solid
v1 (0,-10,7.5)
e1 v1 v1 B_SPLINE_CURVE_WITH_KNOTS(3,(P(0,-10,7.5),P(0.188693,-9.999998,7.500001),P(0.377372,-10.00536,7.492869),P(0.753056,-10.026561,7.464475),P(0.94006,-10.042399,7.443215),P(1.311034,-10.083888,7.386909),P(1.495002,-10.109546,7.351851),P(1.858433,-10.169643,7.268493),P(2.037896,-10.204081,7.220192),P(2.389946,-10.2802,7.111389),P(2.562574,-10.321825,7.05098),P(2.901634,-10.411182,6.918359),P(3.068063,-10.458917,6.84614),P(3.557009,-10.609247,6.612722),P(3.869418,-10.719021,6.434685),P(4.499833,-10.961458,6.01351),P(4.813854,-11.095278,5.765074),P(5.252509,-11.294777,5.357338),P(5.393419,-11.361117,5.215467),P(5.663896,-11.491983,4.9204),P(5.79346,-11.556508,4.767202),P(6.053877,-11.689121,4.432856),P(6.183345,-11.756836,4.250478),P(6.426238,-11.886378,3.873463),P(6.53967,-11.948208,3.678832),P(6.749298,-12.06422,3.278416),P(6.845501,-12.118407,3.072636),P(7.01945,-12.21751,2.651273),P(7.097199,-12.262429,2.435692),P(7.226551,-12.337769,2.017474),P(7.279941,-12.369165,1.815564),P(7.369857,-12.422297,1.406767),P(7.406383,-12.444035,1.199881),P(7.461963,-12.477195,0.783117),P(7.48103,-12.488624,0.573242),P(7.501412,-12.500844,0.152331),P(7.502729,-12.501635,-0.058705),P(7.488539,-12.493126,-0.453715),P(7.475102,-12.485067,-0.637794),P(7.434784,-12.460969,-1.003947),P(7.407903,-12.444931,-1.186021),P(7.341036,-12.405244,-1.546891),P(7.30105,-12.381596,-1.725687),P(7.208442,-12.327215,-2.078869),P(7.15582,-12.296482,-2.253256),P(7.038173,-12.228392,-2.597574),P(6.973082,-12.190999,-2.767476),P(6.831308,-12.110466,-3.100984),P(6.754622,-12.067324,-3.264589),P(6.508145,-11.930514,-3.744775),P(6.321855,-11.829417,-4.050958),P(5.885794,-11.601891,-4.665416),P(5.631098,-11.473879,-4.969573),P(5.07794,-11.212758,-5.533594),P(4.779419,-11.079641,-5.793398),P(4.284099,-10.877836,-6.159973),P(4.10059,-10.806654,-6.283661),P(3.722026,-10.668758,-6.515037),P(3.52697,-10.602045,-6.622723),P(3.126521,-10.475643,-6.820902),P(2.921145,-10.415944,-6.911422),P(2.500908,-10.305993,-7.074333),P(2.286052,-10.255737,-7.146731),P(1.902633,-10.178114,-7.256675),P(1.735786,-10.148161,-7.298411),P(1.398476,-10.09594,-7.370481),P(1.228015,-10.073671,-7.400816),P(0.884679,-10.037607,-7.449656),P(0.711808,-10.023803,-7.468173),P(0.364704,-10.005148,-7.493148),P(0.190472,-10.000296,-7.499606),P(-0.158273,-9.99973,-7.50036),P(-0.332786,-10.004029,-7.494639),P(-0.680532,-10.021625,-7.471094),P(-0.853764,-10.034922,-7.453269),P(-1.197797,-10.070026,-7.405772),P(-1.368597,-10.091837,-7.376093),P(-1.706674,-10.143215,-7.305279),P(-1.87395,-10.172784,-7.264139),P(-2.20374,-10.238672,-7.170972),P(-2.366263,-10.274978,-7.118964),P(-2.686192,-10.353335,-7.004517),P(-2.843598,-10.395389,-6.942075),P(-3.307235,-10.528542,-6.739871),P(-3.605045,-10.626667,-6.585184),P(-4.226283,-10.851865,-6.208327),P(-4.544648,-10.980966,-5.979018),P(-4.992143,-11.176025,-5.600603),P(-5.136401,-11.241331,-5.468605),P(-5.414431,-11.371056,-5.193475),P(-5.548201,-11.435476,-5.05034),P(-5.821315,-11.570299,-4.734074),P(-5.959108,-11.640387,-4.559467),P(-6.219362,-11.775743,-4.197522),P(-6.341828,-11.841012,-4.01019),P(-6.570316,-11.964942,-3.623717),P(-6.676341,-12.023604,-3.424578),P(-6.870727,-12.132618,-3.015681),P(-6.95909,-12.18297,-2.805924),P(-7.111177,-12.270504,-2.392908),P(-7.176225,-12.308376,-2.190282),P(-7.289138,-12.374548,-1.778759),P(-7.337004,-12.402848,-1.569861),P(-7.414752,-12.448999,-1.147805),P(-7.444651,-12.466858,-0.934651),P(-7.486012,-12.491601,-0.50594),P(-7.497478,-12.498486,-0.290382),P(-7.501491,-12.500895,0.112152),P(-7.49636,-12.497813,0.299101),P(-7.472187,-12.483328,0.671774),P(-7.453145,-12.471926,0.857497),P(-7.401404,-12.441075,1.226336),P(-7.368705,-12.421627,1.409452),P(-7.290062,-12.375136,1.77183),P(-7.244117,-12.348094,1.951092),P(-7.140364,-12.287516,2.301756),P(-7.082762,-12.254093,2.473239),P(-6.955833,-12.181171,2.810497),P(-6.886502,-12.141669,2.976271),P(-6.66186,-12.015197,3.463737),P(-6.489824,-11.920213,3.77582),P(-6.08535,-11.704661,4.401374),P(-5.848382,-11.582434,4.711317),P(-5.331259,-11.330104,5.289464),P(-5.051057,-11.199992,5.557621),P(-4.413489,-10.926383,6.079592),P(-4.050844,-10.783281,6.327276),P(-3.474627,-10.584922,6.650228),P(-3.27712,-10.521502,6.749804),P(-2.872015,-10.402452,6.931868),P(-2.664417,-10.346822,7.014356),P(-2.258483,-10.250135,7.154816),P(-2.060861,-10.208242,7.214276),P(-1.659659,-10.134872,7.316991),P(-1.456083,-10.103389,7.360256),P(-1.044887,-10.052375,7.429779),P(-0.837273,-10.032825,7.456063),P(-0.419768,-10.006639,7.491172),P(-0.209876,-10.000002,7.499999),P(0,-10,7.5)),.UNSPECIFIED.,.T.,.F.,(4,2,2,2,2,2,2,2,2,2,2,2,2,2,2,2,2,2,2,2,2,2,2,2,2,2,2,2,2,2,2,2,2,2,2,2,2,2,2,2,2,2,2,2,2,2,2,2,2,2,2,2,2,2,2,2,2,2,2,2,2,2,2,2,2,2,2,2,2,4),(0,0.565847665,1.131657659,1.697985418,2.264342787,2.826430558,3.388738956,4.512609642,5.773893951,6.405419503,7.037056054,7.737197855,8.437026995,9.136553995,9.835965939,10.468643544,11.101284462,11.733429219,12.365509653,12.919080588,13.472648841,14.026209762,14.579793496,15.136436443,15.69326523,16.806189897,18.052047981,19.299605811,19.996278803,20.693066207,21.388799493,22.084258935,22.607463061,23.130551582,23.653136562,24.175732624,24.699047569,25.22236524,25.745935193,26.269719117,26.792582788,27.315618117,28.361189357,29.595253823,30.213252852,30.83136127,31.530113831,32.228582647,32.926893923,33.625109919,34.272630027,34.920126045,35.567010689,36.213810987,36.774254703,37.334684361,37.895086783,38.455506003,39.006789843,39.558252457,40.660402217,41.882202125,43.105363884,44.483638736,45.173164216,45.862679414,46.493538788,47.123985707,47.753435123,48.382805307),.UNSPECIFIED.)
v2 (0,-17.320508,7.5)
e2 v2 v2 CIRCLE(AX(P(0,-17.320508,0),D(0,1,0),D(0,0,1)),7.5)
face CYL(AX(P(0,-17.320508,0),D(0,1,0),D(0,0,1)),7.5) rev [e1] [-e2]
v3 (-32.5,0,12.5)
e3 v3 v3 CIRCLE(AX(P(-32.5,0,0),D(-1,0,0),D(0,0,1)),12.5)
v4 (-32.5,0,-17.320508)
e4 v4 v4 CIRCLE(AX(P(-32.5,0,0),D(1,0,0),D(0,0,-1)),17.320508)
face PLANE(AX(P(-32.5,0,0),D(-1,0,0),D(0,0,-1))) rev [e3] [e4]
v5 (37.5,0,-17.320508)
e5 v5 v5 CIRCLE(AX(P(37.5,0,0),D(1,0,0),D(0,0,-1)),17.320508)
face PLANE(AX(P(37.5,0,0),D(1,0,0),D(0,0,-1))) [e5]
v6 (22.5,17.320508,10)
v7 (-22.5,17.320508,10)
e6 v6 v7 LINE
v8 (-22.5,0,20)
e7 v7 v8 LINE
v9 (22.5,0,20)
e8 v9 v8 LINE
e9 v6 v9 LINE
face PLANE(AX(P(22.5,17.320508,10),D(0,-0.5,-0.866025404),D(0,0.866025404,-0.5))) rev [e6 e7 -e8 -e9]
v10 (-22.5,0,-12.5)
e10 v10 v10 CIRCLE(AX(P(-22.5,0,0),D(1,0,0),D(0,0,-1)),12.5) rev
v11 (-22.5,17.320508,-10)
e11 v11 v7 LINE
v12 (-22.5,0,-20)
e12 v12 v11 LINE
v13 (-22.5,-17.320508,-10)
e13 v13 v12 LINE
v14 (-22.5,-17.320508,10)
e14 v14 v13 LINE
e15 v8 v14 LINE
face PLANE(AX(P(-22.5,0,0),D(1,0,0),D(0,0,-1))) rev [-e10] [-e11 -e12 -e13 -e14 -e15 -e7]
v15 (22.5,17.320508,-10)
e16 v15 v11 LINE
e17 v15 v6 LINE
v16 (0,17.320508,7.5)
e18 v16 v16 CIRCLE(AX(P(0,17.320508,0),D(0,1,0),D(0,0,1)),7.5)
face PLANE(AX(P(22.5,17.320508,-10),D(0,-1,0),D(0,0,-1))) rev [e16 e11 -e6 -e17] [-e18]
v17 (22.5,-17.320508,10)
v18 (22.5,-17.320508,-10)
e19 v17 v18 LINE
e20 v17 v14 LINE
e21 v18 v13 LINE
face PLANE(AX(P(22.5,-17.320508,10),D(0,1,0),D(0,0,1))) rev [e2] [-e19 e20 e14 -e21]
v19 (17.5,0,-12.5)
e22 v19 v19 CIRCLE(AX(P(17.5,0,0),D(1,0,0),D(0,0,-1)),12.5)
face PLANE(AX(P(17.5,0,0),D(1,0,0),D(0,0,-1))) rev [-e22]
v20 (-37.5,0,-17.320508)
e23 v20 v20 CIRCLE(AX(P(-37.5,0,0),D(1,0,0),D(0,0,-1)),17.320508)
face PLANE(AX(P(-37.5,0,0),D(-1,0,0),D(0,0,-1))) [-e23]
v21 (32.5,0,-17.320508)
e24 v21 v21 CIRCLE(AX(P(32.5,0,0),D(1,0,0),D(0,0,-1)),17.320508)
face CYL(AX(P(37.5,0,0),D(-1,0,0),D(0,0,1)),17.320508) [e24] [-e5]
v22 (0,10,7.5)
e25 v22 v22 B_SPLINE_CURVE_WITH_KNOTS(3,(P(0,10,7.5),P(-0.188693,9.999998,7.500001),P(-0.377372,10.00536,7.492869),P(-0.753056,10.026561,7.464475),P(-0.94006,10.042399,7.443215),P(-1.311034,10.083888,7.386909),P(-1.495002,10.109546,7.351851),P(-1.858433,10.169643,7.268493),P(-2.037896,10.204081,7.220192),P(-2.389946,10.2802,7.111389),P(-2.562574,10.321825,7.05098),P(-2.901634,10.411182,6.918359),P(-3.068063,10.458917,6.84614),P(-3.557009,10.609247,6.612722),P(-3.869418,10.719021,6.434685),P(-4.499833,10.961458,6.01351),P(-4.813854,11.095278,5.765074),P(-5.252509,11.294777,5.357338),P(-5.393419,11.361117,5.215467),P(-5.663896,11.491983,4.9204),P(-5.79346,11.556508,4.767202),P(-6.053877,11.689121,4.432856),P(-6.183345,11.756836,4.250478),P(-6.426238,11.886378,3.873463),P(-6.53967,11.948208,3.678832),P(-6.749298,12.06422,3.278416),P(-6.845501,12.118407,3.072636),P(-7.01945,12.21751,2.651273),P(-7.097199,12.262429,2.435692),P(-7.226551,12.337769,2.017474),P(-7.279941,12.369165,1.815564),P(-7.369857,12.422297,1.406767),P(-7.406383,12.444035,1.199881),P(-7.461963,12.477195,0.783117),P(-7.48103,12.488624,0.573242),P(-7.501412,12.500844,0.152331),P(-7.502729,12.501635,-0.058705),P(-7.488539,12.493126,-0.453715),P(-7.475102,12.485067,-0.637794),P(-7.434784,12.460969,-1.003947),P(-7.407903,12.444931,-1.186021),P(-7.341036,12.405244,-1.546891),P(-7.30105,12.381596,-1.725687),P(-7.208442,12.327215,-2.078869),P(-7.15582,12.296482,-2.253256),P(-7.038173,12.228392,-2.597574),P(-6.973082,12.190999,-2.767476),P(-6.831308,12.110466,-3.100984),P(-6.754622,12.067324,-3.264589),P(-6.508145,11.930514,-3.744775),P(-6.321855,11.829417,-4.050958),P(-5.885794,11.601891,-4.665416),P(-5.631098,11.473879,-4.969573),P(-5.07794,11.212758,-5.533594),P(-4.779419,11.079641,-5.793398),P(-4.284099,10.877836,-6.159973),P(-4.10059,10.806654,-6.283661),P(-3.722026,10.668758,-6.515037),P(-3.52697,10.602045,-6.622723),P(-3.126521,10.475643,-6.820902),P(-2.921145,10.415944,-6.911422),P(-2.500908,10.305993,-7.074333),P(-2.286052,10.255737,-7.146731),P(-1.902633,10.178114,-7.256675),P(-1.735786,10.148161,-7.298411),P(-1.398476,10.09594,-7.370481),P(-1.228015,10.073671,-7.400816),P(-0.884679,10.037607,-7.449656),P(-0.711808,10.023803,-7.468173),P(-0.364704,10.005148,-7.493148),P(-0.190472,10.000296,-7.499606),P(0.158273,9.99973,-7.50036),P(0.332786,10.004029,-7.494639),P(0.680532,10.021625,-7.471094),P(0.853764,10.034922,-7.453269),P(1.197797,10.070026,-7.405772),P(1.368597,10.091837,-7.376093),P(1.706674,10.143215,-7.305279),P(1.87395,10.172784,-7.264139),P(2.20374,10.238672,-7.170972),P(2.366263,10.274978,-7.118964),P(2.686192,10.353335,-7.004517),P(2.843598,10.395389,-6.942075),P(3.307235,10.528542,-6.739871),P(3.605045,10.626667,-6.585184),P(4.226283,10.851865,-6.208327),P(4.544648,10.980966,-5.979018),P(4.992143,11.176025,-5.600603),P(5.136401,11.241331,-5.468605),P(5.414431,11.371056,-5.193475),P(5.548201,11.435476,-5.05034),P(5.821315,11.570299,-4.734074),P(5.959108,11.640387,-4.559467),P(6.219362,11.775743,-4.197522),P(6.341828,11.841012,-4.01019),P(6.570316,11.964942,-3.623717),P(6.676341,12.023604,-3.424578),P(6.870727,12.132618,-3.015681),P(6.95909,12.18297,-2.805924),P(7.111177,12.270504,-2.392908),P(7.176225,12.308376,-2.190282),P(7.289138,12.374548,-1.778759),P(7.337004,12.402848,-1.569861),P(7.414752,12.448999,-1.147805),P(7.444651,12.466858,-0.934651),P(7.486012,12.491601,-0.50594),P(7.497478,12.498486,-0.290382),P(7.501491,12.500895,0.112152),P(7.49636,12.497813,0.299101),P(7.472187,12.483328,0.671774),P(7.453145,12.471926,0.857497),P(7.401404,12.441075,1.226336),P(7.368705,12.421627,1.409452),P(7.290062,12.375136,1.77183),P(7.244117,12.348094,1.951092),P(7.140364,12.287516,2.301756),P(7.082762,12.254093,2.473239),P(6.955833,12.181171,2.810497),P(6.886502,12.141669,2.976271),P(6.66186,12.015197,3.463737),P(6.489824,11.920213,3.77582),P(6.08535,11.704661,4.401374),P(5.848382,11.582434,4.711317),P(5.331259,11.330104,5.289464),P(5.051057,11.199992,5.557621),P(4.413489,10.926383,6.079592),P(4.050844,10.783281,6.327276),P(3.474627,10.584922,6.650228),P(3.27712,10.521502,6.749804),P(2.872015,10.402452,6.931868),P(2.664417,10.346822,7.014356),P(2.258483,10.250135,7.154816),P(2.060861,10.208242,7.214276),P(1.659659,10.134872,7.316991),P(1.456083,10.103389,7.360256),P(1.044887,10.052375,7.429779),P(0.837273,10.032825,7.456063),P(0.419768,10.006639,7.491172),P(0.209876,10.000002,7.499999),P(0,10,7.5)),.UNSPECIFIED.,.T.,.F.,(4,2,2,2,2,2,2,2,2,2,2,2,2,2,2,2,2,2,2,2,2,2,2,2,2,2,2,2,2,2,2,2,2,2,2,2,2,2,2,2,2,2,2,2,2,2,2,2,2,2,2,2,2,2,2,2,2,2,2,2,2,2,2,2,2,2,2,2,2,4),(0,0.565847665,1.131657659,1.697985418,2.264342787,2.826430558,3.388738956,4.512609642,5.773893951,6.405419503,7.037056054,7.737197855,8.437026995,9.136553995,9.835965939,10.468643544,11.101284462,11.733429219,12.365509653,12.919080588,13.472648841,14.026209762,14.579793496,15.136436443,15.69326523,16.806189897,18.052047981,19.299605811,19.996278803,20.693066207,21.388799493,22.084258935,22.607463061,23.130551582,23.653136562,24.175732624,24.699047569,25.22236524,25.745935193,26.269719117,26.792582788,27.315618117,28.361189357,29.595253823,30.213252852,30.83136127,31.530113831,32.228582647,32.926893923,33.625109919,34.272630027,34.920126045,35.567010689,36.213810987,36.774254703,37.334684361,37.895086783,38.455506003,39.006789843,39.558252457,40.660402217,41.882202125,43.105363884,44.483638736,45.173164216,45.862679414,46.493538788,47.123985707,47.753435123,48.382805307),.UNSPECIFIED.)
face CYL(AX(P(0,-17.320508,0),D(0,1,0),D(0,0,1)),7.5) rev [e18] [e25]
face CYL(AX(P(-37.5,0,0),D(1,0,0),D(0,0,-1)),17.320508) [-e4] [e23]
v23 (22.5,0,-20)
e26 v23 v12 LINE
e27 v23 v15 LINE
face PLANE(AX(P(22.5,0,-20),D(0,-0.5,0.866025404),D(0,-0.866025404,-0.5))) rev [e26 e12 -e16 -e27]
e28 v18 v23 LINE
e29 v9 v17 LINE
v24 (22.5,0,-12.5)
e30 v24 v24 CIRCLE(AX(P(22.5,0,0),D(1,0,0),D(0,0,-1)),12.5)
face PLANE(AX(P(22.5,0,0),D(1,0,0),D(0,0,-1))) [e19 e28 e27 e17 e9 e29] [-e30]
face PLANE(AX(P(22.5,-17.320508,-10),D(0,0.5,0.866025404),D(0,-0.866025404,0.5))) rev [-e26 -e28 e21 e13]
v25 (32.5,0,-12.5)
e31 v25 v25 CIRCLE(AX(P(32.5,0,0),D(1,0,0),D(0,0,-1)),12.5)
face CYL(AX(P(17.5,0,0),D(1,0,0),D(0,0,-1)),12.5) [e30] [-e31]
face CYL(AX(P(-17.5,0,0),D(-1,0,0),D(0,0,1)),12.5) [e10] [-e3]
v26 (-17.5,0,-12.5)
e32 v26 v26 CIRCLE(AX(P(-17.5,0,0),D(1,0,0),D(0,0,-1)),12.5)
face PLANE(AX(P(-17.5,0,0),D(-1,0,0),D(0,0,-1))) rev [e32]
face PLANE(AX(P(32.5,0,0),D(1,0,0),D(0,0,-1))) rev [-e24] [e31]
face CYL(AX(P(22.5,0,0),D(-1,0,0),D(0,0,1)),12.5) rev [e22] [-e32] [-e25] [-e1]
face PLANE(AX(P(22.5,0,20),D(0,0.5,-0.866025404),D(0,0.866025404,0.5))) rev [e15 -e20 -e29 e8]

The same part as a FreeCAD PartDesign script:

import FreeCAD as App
import Part
import Sketcher
from FreeCAD import Vector
Q = App.Units.Quantity


def add_polygon(sketch, points):
    """Adds a closed chain of lines whose ends are joined by coincident constraints."""
    first, n = sketch.GeometryCount, len(points)
    for a, b in zip(points, points[1:] + points[:1]):
        sketch.addGeometry(Part.LineSegment(App.Vector(*a, 0), App.Vector(*b, 0)), False)
    for i in range(n):
        sketch.addConstraint(Sketcher.Constraint("Coincident", first + i, 2, first + (i + 1) % n, 1))

doc = App.newDocument("Part")
params = doc.addObject("Spreadsheet::Sheet", "Params")
for row, (alias, value) in enumerate([
    ("sketch1_diameter", "25 mm"),
    ("sketch1_height", "20 mm"),
    ("sketch1_length", "20 mm"),
    ("pad1_length", "45 mm"),
    ("sketch2_diameter", "15 mm"),
    ("sketch3_diameter", "25 mm"),
    ("pad2_length", "15 mm"),
    ("pad3_length", "5 mm"),
], start=1):
    params.set(f"A{row}", alias)
    params.set(f"B{row}", "=" + value)
    params.setAlias(f"B{row}", alias)

body = doc.addObject("PartDesign::Body", "Body")

sketch1 = body.newObject("Sketcher::SketchObject", "Sketch")
sketch1.AttachmentSupport = (doc.getObject("YZ_Plane"), [""])
sketch1.MapMode = "FlatFace"
add_polygon(sketch1, [(17.320508, -10), (17.320508, 10), (0, 20), (-17.320508, 10), (-17.320508, -10), (0, -20)])
sketch1.addGeometry(Part.Circle(Vector(0, 0, 0), Vector(0, 0, 1), 12.5), False)
sketch1.addConstraint([
    Sketcher.Constraint("Vertical", 0),
    Sketcher.Constraint("Vertical", 3),
    Sketcher.Constraint("Coincident", 6, 3, -1, 1),
    Sketcher.Constraint("Symmetric", 0, 2, 3, 2, -1, 1),
    Sketcher.Constraint("Symmetric", 1, 2, 4, 2, -1, 1),
    Sketcher.Constraint("PointOnObject", 1, 2, -2),
    Sketcher.Constraint("Parallel", 2, 5),
    Sketcher.Constraint("Horizontal", 0, 2, 2, 2),
    Sketcher.Constraint("Diameter", 6, Q("25 mm")),
    Sketcher.Constraint("DistanceY", 0, 1, 0, 2, Q("20 mm")),
    Sketcher.Constraint("Angle", 1, Q("150 deg")),
    Sketcher.Constraint("Distance", 1, Q("20 mm")),
])
sketch1.setExpression("Constraints[14]", "Params.sketch1_diameter")
sketch1.setExpression("Constraints[15]", "Params.sketch1_height")
sketch1.setExpression("Constraints[17]", "Params.sketch1_length")
pad1 = body.newObject("PartDesign::Pad", "Pad")
pad1.Profile = sketch1
pad1.setExpression("Length", "Params.pad1_length")
pad1.Midplane = True

sketch2 = body.newObject("Sketcher::SketchObject", "Sketch001")
sketch2.AttachmentSupport = (doc.getObject("XZ_Plane"), [""])
sketch2.MapMode = "FlatFace"
sketch2.addGeometry(Part.Circle(Vector(0, 0, 0), Vector(0, 0, 1), 7.5), False)
sketch2.addConstraint([
    Sketcher.Constraint("Coincident", 0, 3, -1, 1),
    Sketcher.Constraint("Diameter", 0, Q("15 mm")),
])
sketch2.setExpression("Constraints[1]", "Params.sketch2_diameter")
pocket1 = body.newObject("PartDesign::Pocket", "Pocket")
pocket1.Profile = sketch2
pocket1.Type = "ThroughAll"
pocket1.Midplane = True

sketch3 = body.newObject("Sketcher::SketchObject", "Sketch002")
sketch3.AttachmentSupport = (doc.getObject("YZ_Plane"), [""])
sketch3.MapMode = "FlatFace"
sketch3.AttachmentOffset = App.Placement(Vector(0, 0, 17.5), App.Rotation())
sketch3.addGeometry(Part.Circle(Vector(0, 0, 0), Vector(0, 0, 1), 12.5), False)
sketch3.addConstraint([
    Sketcher.Constraint("Coincident", 0, 3, -1, 1),
    Sketcher.Constraint("Diameter", 0, Q("25 mm")),
])
sketch3.setExpression("Constraints[1]", "Params.sketch3_diameter")
pad2 = body.newObject("PartDesign::Pad", "Pad001")
pad2.Profile = sketch3
pad2.setExpression("Length", "Params.pad2_length")

sketch4 = body.newObject("Sketcher::SketchObject", "Sketch003")
sketch4.AttachmentSupport = (doc.getObject("YZ_Plane"), [""])
sketch4.MapMode = "FlatFace"
sketch4.AttachmentOffset = App.Placement(Vector(0, 0, 32.5), App.Rotation())
sketch4.addGeometry(Part.Circle(Vector(0, 0, 0), Vector(0, 0, 1), 17.320508), False)
sketch4.addConstraint([
    Sketcher.Constraint("Coincident", 0, 3, -1, 1),
    Sketcher.Constraint("Diameter", 0, Q("34.641016 mm")),
])
pad3 = body.newObject("PartDesign::Pad", "Pad002")
pad3.Profile = sketch4
pad3.setExpression("Length", "Params.pad3_length")
doc.recompute()

mirrored = body.newObject("PartDesign::Mirrored", "Mirrored")
mirrored.Originals = [pad2, pad3]
mirrored.MirrorPlane = (doc.getObject("YZ_Plane"), [""])
body.Tip = mirrored

doc.recompute()
